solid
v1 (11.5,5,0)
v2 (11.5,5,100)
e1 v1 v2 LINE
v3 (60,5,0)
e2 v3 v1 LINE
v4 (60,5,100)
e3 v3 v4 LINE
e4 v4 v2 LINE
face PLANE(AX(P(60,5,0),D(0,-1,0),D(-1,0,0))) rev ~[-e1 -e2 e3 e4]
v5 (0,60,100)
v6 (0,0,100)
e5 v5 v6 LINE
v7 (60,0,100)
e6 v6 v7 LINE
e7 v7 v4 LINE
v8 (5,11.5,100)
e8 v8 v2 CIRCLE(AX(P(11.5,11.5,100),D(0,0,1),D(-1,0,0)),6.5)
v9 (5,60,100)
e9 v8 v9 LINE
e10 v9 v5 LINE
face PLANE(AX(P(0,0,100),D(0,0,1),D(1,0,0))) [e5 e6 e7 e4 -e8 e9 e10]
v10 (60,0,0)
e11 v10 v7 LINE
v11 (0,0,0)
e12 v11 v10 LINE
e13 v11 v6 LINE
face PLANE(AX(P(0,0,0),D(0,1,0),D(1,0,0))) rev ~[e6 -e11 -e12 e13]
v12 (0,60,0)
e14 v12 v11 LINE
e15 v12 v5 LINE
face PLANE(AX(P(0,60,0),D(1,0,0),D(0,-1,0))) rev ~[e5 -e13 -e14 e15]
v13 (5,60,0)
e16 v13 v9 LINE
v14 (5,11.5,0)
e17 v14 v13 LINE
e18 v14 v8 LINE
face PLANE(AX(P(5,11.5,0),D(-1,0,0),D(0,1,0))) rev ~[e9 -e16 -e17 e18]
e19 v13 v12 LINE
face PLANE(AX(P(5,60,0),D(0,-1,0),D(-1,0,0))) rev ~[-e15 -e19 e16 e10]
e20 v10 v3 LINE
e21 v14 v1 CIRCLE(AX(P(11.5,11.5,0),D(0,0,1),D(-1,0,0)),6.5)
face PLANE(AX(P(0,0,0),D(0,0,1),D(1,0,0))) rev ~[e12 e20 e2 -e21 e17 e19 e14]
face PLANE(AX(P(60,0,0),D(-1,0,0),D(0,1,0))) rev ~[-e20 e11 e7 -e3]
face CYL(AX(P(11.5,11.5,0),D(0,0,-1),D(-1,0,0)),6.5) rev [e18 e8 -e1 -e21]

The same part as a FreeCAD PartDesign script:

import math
import FreeCAD as App
import Part
import Sketcher

V = App.Vector

doc = App.newDocument("Part")
body = doc.addObject("PartDesign::Body", "Body")

# Sketch on XY plane
sketch1 = body.newObject("Sketcher::SketchObject", "Sketch")
sketch1.AttachmentSupport = (doc.getObject("XY_Plane"), [""])
sketch1.MapMode = "FlatFace"
sketch1.addGeometry([
    Part.LineSegment(V(5, 60, 0), V(0, 60, 0)),  # 0
    Part.LineSegment(V(0, 60, 0), V(0, 0, 0)),  # 1
    Part.LineSegment(V(0, 0, 0), V(60, 0, 0)),  # 2
    Part.LineSegment(V(60, 0, 0), V(60, 5, 0)),  # 3
    Part.LineSegment(V(60, 5, 0), V(12, 5, 0)),  # 4
    Part.ArcOfCircle(Part.Circle(V(12, 12, 0), V(0, 0, 1), 6), math.radians(180), math.radians(270)),  # 5
    Part.LineSegment(V(5, 12, 0), V(5, 60, 0)),  # 6
], False)
sketch1.addConstraint([
    Sketcher.Constraint("Coincident", 0, 2, 1, 1),
    Sketcher.Constraint("Coincident", 1, 2, 2, 1),
    Sketcher.Constraint("Coincident", 2, 2, 3, 1),
    Sketcher.Constraint("Coincident", 3, 2, 4, 1),
    Sketcher.Constraint("Tangent", 4, 2, 5, 2),
    Sketcher.Constraint("Tangent", 5, 1, 6, 1),
    Sketcher.Constraint("Coincident", 6, 2, 0, 1),
    Sketcher.Constraint("Horizontal", 0),
    Sketcher.Constraint("Vertical", 1),
    Sketcher.Constraint("Horizontal", 2),
    Sketcher.Constraint("Vertical", 3),
    Sketcher.Constraint("Horizontal", 4),
    Sketcher.Constraint("Vertical", 6),
    Sketcher.Constraint("Coincident", 1, 2, -1, 1),
    Sketcher.Constraint("Equal", 2, 1),
    Sketcher.Constraint("Equal", 0, 3),
    Sketcher.Constraint("Radius", 5, 6.5),
    Sketcher.Constraint("DistanceX", 0, 2, 0, 1, 5.0),
    Sketcher.Constraint("DistanceX", 2, 1, 2, 2, 60.0),
])
pad1 = body.newObject("PartDesign::Pad", "Pad")
pad1.Profile = sketch1
pad1.Length = 100

doc.recompute()
